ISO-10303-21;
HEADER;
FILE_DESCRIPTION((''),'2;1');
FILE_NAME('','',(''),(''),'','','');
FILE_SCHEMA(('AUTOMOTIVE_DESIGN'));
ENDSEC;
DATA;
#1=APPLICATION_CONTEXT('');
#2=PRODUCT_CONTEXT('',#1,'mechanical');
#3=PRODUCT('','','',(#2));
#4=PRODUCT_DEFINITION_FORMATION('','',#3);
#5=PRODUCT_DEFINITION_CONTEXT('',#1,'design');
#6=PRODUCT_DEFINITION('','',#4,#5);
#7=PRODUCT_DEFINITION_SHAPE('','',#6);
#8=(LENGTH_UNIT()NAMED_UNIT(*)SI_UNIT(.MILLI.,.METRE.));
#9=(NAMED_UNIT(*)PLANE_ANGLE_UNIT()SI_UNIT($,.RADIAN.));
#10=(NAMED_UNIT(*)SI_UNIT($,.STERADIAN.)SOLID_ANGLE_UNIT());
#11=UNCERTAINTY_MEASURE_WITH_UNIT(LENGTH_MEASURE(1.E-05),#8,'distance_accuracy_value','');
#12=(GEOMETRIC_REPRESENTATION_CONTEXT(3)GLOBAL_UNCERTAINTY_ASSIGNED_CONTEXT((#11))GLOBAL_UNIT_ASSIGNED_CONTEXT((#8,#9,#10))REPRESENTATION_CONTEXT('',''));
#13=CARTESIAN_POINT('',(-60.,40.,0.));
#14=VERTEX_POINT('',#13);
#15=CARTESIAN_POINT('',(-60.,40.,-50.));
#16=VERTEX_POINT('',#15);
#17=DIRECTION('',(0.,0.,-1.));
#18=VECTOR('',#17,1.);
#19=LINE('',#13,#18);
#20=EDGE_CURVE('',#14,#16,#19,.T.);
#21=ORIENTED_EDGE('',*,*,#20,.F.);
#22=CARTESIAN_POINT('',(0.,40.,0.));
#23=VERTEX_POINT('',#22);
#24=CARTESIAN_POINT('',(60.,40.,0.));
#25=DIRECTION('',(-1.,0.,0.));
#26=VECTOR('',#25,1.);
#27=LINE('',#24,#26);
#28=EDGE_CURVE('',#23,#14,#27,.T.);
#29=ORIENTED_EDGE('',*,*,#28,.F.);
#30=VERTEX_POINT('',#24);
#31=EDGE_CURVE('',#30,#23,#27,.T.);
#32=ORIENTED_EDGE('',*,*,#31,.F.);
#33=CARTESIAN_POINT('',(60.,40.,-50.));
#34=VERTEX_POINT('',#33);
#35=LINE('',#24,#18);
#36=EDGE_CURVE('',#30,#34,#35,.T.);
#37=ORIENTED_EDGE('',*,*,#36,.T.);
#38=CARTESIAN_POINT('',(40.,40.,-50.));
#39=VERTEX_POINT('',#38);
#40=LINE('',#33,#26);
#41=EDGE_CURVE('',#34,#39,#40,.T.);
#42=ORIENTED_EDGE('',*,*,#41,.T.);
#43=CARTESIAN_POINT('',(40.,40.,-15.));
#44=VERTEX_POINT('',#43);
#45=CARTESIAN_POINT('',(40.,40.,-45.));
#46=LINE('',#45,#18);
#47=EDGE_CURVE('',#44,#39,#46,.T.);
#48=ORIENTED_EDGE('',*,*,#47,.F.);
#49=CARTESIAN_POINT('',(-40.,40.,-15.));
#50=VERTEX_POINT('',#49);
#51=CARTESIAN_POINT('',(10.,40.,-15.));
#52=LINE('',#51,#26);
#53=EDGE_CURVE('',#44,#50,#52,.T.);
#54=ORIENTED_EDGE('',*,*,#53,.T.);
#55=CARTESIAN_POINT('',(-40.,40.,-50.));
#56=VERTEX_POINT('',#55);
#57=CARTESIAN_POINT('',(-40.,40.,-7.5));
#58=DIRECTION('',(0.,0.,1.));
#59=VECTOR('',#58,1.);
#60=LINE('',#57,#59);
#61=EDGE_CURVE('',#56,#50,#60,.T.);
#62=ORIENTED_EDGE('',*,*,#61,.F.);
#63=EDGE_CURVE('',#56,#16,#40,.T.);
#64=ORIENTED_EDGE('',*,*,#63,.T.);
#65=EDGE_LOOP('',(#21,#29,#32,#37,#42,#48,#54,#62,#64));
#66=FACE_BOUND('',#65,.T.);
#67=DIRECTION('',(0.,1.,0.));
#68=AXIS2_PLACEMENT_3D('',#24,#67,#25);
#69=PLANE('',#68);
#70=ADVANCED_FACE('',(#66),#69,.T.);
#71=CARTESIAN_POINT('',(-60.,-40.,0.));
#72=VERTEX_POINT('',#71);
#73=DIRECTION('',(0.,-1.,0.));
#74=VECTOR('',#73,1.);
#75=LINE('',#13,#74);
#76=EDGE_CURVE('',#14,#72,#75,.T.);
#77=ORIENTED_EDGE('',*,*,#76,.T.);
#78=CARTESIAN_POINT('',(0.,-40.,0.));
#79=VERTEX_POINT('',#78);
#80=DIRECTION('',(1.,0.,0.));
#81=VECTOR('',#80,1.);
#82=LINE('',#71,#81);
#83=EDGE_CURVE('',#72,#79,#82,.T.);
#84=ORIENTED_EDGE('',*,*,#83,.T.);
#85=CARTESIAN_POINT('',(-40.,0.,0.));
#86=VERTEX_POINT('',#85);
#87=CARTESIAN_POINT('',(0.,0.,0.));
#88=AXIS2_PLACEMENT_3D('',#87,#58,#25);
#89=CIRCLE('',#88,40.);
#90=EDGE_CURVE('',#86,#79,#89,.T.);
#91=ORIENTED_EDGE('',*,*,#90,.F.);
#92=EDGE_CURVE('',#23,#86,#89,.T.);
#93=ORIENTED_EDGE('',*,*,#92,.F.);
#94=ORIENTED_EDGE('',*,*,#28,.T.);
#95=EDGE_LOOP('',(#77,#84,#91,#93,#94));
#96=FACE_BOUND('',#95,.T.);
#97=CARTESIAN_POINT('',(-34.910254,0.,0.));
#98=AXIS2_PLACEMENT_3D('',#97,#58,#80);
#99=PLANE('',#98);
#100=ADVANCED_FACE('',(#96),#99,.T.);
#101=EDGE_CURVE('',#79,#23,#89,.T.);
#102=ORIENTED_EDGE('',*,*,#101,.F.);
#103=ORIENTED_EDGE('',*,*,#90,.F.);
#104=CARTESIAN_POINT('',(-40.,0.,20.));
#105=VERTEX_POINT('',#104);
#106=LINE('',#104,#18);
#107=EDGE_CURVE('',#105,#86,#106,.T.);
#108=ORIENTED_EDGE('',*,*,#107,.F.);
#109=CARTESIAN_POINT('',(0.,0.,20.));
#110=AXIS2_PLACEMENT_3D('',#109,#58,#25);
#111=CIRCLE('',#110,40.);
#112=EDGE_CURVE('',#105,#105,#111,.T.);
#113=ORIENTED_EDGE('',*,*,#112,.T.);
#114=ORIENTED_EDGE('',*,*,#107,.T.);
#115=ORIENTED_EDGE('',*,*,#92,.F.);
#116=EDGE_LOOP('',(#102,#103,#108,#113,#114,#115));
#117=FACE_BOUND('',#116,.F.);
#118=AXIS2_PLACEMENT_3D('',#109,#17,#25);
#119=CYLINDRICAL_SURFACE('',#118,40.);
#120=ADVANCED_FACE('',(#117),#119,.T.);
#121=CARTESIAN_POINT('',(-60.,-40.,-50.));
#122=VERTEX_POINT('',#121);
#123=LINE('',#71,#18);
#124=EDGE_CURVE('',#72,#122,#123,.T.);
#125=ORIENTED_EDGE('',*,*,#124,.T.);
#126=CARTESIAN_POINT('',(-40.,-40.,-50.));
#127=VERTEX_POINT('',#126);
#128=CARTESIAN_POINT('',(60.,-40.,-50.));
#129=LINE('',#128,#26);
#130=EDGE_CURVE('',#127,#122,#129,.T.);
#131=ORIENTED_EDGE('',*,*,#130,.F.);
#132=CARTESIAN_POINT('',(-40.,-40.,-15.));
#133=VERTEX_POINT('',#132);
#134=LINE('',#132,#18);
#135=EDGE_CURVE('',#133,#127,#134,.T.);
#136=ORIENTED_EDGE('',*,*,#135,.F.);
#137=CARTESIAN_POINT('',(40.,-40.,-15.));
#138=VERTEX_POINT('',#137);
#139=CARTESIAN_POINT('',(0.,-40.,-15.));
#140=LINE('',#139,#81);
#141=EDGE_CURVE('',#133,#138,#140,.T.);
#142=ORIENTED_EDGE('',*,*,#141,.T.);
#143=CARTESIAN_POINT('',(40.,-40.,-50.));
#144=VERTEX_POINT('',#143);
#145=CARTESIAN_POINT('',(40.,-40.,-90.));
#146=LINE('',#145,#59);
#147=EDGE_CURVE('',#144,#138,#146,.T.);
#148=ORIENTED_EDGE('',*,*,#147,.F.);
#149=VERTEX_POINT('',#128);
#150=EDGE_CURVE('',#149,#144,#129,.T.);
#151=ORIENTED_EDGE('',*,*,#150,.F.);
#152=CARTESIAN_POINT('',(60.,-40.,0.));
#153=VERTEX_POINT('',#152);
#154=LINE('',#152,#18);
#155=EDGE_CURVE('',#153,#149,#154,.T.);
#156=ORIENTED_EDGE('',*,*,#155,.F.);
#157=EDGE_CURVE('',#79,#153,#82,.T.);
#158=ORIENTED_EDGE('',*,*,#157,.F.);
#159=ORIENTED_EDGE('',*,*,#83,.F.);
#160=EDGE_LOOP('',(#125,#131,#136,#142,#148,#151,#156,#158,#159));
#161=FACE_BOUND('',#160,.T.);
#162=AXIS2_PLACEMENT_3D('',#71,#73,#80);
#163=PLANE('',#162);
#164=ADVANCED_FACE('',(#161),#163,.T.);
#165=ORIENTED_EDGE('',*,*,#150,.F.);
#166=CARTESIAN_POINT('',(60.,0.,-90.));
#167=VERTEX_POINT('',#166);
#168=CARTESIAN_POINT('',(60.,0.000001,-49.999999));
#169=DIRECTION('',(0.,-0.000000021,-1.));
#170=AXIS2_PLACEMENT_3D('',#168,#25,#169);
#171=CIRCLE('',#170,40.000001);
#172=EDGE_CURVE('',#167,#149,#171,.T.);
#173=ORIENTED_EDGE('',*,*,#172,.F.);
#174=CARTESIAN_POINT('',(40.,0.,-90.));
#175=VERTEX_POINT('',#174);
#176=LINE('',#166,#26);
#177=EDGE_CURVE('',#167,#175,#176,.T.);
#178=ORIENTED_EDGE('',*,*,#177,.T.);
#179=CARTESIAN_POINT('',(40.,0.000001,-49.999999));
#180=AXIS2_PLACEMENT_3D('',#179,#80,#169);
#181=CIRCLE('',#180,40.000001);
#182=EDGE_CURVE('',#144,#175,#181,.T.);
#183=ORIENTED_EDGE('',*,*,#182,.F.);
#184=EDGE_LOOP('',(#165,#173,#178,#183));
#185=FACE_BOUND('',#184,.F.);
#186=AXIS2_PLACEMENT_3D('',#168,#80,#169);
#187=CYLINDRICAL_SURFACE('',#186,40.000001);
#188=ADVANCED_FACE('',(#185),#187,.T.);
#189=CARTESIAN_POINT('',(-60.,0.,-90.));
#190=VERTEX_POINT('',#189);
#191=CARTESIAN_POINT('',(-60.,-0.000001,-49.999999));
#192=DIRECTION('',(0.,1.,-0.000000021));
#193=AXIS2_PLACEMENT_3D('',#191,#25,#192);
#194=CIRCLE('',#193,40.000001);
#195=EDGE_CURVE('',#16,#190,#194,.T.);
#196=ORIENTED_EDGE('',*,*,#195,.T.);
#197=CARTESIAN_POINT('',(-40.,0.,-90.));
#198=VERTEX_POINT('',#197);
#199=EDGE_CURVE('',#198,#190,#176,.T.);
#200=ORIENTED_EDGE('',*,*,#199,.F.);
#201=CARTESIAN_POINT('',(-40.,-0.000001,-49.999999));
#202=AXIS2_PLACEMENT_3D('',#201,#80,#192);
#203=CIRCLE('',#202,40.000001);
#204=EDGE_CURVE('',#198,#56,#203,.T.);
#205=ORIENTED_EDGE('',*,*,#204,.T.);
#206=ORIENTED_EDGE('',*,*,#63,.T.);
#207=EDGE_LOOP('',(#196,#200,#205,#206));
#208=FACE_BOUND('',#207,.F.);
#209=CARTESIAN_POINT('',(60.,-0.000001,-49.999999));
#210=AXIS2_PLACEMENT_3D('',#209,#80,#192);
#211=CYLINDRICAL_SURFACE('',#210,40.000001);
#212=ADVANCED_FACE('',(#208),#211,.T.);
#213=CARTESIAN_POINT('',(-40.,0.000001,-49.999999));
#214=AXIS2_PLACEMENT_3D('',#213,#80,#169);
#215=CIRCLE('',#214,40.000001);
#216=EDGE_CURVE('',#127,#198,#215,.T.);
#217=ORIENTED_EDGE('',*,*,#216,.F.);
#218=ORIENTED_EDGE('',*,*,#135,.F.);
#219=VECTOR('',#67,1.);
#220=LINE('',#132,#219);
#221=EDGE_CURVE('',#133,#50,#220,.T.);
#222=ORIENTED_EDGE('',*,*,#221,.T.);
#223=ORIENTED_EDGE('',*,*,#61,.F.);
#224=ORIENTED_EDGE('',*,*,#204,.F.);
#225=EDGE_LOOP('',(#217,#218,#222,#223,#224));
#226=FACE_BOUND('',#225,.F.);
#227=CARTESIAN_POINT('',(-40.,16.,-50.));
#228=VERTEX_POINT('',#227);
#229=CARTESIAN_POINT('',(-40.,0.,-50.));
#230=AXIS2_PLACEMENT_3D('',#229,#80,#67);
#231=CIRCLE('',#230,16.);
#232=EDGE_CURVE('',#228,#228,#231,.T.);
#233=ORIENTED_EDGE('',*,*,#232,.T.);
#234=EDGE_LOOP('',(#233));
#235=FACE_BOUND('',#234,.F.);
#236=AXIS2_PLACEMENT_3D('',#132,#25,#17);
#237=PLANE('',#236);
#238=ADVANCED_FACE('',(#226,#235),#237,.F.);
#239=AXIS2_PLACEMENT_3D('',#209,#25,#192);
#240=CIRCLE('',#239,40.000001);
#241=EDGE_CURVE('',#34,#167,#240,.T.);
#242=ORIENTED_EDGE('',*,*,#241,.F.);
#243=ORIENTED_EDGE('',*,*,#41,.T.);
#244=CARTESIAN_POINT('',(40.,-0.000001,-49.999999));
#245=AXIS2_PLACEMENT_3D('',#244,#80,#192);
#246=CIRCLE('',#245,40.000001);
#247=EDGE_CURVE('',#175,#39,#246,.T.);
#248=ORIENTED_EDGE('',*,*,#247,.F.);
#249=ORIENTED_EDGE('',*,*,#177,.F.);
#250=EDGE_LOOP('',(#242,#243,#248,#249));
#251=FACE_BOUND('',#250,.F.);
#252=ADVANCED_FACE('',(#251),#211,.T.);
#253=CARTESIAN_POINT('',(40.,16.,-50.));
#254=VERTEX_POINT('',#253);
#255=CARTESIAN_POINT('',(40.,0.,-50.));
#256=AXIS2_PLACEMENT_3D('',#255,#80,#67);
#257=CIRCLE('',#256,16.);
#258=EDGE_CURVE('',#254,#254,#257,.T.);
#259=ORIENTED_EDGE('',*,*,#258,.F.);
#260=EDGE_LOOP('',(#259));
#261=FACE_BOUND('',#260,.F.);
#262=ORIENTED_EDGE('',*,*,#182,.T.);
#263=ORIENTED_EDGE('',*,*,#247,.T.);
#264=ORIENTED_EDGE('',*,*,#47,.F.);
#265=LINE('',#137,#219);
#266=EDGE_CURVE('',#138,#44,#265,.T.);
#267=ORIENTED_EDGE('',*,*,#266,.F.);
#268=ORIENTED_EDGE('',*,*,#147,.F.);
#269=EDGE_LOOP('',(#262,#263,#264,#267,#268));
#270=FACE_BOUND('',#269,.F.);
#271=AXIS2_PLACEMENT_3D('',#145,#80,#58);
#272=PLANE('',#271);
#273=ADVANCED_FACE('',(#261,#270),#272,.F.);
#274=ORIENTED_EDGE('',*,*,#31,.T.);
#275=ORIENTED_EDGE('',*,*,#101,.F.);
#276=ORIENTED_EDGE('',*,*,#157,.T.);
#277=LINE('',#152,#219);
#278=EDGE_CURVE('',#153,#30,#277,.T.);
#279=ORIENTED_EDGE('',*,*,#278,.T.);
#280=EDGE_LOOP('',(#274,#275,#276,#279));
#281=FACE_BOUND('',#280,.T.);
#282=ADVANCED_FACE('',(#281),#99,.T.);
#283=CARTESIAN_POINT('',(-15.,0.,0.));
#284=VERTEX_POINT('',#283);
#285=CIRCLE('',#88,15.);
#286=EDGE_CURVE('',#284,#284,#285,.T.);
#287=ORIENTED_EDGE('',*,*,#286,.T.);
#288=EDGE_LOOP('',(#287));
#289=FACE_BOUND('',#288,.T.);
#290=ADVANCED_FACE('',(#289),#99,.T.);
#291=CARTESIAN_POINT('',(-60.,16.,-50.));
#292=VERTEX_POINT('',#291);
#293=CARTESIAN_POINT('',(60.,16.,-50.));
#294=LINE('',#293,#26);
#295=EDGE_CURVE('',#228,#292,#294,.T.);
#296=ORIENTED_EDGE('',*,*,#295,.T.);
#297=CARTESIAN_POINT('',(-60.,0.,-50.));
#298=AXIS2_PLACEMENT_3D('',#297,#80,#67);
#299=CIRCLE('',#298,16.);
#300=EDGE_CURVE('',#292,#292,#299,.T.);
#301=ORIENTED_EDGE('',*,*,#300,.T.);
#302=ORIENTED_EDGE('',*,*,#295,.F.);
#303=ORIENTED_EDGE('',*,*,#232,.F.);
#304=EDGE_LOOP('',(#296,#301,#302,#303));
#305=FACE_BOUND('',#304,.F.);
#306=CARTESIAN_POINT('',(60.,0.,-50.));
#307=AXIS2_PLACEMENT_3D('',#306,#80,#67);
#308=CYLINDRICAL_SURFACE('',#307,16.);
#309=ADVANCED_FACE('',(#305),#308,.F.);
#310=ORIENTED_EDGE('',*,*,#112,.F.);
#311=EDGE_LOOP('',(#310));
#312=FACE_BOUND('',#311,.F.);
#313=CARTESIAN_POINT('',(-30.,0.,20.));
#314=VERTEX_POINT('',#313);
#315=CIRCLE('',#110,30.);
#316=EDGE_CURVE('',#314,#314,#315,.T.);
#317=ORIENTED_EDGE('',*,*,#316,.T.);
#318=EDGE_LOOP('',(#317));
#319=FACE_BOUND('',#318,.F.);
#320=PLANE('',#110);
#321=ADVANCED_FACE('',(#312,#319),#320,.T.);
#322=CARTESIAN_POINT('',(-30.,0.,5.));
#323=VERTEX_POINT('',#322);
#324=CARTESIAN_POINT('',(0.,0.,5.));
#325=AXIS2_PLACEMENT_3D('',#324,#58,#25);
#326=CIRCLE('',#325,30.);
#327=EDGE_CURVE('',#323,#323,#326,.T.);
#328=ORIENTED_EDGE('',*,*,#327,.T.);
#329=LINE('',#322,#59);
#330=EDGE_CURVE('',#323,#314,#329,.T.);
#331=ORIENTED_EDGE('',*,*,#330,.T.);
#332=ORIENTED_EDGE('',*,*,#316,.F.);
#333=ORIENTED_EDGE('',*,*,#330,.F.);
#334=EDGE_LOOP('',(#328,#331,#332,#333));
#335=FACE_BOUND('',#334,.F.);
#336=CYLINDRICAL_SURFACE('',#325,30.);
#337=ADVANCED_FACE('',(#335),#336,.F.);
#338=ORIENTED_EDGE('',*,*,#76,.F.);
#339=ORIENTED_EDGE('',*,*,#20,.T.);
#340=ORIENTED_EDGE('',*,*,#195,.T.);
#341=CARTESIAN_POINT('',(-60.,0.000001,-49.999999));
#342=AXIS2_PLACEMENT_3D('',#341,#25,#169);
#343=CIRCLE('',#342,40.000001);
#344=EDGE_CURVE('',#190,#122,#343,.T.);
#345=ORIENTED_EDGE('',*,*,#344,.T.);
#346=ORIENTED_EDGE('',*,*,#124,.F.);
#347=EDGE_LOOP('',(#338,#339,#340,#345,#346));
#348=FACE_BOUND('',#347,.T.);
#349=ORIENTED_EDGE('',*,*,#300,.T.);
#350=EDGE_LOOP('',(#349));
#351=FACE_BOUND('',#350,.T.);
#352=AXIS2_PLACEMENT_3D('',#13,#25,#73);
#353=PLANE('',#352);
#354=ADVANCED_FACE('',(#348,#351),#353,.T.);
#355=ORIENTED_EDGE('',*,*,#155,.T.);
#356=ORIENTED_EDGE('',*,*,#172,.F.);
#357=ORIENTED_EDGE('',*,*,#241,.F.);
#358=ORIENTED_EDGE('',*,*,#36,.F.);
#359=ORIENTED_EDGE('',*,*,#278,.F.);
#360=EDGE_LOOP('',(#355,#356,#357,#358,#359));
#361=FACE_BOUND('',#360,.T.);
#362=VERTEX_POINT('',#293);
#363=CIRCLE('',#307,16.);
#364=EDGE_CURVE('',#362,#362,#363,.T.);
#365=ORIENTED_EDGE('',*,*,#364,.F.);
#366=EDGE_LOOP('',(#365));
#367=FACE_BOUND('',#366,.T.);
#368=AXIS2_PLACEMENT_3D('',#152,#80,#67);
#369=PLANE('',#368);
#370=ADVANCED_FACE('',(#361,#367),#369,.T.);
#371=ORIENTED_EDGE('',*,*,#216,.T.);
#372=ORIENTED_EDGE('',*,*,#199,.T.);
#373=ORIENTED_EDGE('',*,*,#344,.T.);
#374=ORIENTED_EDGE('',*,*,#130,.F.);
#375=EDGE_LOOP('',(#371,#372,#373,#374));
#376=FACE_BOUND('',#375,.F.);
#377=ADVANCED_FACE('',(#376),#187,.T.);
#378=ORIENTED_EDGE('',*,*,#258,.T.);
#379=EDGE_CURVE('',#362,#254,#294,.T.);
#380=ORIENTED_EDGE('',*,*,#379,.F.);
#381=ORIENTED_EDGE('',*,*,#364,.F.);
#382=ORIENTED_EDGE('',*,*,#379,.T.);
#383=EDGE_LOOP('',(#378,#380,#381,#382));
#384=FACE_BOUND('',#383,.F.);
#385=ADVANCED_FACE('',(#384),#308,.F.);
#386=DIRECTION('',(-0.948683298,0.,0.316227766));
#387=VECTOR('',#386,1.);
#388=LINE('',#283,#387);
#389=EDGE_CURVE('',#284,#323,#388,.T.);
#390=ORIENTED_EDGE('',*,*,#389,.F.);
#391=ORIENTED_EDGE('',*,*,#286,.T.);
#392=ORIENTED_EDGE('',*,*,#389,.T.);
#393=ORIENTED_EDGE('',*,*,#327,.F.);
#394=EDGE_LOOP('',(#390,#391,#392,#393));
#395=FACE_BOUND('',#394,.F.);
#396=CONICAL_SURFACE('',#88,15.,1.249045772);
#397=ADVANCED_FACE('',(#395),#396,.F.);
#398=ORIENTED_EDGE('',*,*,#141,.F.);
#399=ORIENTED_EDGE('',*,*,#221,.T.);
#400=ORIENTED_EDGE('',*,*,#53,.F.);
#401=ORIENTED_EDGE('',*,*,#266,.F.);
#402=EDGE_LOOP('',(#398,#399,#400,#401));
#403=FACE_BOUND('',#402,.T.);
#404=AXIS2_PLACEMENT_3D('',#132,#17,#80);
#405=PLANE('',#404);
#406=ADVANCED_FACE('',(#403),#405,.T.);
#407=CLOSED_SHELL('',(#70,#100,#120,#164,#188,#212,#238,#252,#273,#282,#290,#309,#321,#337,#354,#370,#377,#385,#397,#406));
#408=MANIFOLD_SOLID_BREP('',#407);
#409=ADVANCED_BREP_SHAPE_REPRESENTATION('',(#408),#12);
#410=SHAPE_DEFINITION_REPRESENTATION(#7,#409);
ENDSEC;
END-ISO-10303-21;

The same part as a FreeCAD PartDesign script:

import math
import FreeCAD as App
import Part
import Sketcher

V = App.Vector


def add_polygon(sketch, points):
    """Adds a closed chain of lines whose ends are joined by coincident constraints."""
    first, n = sketch.GeometryCount, len(points)
    for a, b in zip(points, points[1:] + points[:1]):
        sketch.addGeometry(Part.LineSegment(App.Vector(*a, 0), App.Vector(*b, 0)), False)
    for i in range(n):
        sketch.addConstraint(Sketcher.Constraint("Coincident", first + i, 2, first + (i + 1) % n, 1))

doc = App.newDocument("Part")
body = doc.addObject("PartDesign::Body", "Body")

# Sketch on XY plane
sketch1 = body.newObject("Sketcher::SketchObject", "Sketch")
sketch1.AttachmentSupport = (doc.getObject("XY_Plane"), [""])
sketch1.MapMode = "FlatFace"
add_polygon(sketch1, [(-60, 40), (-60, -40), (60, -40), (60, 40)])  # lines 0-3
sketch1.addConstraint(Sketcher.Constraint("Vertical", 0))
sketch1.addConstraint(Sketcher.Constraint("Horizontal", 1))
sketch1.addConstraint(Sketcher.Constraint("Vertical", 2))
sketch1.addConstraint(Sketcher.Constraint("Horizontal", 3))
sketch1.addConstraint(Sketcher.Constraint("Symmetric", 0, 2, 2, 2, -1, 1))
sketch1.addConstraint(Sketcher.Constraint("DistanceX", 1, 1, 1, 2, 120.0))
sketch1.addConstraint(Sketcher.Constraint("DistanceY", 0, 2, 0, 1, 80.0))
pad1 = body.newObject("PartDesign::Pad", "Pad")
pad1.Profile = sketch1
pad1.Length = 90
pad1.Reversed = True

# Sketch on YZ plane
sketch2 = body.newObject("Sketcher::SketchObject", "Sketch001")
sketch2.AttachmentSupport = (doc.getObject("YZ_Plane"), [""])
sketch2.MapMode = "FlatFace"
sketch2.AttachmentOffset = App.Placement(V(0, 0, 60), App.Rotation())
sketch2.addGeometry(Part.Circle(V(0, -50, 0), V(0, 0, 1), 16), False)
sketch2.addGeometry(Part.ArcOfCircle(Part.Circle(V(0.000001, -49.999999, 0), V(0, 0, 1), 40.000001), math.radians(-179.999999), math.radians(-90.000001)), False)
sketch2.addGeometry(Part.LineSegment(V(-40, -50, 0), V(-40, -90, 0)), False)
sketch2.addGeometry(Part.LineSegment(V(-40, -90, 0), V(0, -90, 0)), False)
sketch2.addGeometry(Part.LineSegment(V(40, -90, 0), V(40, -50, 0)), False)
sketch2.addGeometry(Part.ArcOfCircle(Part.Circle(V(-0.000001, -49.999999, 0), V(0, 0, 1), 40.000001), math.radians(-89.999999), math.radians(-0.000001)), False)
sketch2.addGeometry(Part.LineSegment(V(0, -90, 0), V(40, -90, 0)), False)
sketch2.addConstraint(Sketcher.Constraint("Tangent", 1, 1, 2, 1))
sketch2.addConstraint(Sketcher.Constraint("Coincident", 2, 2, 3, 1))
sketch2.addConstraint(Sketcher.Constraint("Tangent", 3, 2, 1, 2))
sketch2.addConstraint(Sketcher.Constraint("Tangent", 4, 2, 5, 2))
sketch2.addConstraint(Sketcher.Constraint("Tangent", 5, 1, 6, 1))
sketch2.addConstraint(Sketcher.Constraint("Coincident", 6, 2, 4, 1))
sketch2.addConstraint(Sketcher.Constraint("Vertical", 2))
sketch2.addConstraint(Sketcher.Constraint("Horizontal", 3))
sketch2.addConstraint(Sketcher.Constraint("Vertical", 4))
sketch2.addConstraint(Sketcher.Constraint("Horizontal", 6))
sketch2.addConstraint(Sketcher.Constraint("Coincident", 1, 3, 0, 3))
sketch2.addConstraint(Sketcher.Constraint("Coincident", 5, 3, 0, 3))
sketch2.addConstraint(Sketcher.Constraint("Equal", 1, 5))
sketch2.addConstraint(Sketcher.Constraint("PointOnObject", 0, 3, -2))
sketch2.addConstraint(Sketcher.Constraint("Diameter", 0, 32.0))
sketch2.addConstraint(Sketcher.Constraint("Radius", 1, 40.000001))
sketch2.addConstraint(Sketcher.Constraint("DistanceY", 0, 3, -1, 1, 50.0))
pocket1 = body.newObject("PartDesign::Pocket", "Pocket")
pocket1.Profile = sketch2
pocket1.Length = 120

# Sketch on XZ plane
sketch3 = body.newObject("Sketcher::SketchObject", "Sketch002")
sketch3.AttachmentSupport = (doc.getObject("XZ_Plane"), [""])
sketch3.MapMode = "FlatFace"
sketch3.AttachmentOffset = App.Placement(V(0, 0, 40), App.Rotation())
add_polygon(sketch3, [(-40, -15), (-40, -90), (40, -90), (40, -15)])  # lines 0-3
sketch3.addConstraint(Sketcher.Constraint("Vertical", 0))
sketch3.addConstraint(Sketcher.Constraint("Horizontal", 1))
sketch3.addConstraint(Sketcher.Constraint("Vertical", 2))
sketch3.addConstraint(Sketcher.Constraint("Horizontal", 3))
sketch3.addConstraint(Sketcher.Constraint("DistanceX", 1, 1, 1, 2, 80.0))
sketch3.addConstraint(Sketcher.Constraint("DistanceY", 0, 2, 0, 1, 75.0))
sketch3.addConstraint(Sketcher.Constraint("DistanceX", 0, 2, -1, 1, 40.0))
sketch3.addConstraint(Sketcher.Constraint("DistanceY", 0, 2, -1, 1, 90.0))
pocket2 = body.newObject("PartDesign::Pocket", "Pocket001")
pocket2.Profile = sketch3
pocket2.Length = 250

# Sketch on XZ plane
sketch4 = body.newObject("Sketcher::SketchObject", "Sketch003")
sketch4.AttachmentSupport = (doc.getObject("XZ_Plane"), [""])
sketch4.MapMode = "FlatFace"
add_polygon(sketch4, [(-40, 0), (-15, 0), (-30, 5), (-30, 20), (-40, 20)])  # lines 0-4
sketch4.addConstraint(Sketcher.Constraint("Horizontal", 0))
sketch4.addConstraint(Sketcher.Constraint("Vertical", 2))
sketch4.addConstraint(Sketcher.Constraint("Horizontal", 3))
sketch4.addConstraint(Sketcher.Constraint("Vertical", 4))
sketch4.addConstraint(Sketcher.Constraint("PointOnObject", 0, 2, -1))
sketch4.addConstraint(Sketcher.Constraint("DistanceX", 0, 1, 0, 2, 25.0))
sketch4.addConstraint(Sketcher.Constraint("DistanceX", 3, 2, 3, 1, 10.0))
sketch4.addConstraint(Sketcher.Constraint("DistanceY", 2, 1, 2, 2, 15.0))
sketch4.addConstraint(Sketcher.Constraint("DistanceY", 4, 2, 4, 1, 20.0))
sketch4.addConstraint(Sketcher.Constraint("DistanceX", 0, 2, -1, 1, 15.0))
revolution = body.newObject("PartDesign::Revolution", "Revolution")
revolution.Profile = sketch4
revolution.ReferenceAxis = (sketch4, ["V_Axis"])
revolution.Angle = 360

doc.recompute()
